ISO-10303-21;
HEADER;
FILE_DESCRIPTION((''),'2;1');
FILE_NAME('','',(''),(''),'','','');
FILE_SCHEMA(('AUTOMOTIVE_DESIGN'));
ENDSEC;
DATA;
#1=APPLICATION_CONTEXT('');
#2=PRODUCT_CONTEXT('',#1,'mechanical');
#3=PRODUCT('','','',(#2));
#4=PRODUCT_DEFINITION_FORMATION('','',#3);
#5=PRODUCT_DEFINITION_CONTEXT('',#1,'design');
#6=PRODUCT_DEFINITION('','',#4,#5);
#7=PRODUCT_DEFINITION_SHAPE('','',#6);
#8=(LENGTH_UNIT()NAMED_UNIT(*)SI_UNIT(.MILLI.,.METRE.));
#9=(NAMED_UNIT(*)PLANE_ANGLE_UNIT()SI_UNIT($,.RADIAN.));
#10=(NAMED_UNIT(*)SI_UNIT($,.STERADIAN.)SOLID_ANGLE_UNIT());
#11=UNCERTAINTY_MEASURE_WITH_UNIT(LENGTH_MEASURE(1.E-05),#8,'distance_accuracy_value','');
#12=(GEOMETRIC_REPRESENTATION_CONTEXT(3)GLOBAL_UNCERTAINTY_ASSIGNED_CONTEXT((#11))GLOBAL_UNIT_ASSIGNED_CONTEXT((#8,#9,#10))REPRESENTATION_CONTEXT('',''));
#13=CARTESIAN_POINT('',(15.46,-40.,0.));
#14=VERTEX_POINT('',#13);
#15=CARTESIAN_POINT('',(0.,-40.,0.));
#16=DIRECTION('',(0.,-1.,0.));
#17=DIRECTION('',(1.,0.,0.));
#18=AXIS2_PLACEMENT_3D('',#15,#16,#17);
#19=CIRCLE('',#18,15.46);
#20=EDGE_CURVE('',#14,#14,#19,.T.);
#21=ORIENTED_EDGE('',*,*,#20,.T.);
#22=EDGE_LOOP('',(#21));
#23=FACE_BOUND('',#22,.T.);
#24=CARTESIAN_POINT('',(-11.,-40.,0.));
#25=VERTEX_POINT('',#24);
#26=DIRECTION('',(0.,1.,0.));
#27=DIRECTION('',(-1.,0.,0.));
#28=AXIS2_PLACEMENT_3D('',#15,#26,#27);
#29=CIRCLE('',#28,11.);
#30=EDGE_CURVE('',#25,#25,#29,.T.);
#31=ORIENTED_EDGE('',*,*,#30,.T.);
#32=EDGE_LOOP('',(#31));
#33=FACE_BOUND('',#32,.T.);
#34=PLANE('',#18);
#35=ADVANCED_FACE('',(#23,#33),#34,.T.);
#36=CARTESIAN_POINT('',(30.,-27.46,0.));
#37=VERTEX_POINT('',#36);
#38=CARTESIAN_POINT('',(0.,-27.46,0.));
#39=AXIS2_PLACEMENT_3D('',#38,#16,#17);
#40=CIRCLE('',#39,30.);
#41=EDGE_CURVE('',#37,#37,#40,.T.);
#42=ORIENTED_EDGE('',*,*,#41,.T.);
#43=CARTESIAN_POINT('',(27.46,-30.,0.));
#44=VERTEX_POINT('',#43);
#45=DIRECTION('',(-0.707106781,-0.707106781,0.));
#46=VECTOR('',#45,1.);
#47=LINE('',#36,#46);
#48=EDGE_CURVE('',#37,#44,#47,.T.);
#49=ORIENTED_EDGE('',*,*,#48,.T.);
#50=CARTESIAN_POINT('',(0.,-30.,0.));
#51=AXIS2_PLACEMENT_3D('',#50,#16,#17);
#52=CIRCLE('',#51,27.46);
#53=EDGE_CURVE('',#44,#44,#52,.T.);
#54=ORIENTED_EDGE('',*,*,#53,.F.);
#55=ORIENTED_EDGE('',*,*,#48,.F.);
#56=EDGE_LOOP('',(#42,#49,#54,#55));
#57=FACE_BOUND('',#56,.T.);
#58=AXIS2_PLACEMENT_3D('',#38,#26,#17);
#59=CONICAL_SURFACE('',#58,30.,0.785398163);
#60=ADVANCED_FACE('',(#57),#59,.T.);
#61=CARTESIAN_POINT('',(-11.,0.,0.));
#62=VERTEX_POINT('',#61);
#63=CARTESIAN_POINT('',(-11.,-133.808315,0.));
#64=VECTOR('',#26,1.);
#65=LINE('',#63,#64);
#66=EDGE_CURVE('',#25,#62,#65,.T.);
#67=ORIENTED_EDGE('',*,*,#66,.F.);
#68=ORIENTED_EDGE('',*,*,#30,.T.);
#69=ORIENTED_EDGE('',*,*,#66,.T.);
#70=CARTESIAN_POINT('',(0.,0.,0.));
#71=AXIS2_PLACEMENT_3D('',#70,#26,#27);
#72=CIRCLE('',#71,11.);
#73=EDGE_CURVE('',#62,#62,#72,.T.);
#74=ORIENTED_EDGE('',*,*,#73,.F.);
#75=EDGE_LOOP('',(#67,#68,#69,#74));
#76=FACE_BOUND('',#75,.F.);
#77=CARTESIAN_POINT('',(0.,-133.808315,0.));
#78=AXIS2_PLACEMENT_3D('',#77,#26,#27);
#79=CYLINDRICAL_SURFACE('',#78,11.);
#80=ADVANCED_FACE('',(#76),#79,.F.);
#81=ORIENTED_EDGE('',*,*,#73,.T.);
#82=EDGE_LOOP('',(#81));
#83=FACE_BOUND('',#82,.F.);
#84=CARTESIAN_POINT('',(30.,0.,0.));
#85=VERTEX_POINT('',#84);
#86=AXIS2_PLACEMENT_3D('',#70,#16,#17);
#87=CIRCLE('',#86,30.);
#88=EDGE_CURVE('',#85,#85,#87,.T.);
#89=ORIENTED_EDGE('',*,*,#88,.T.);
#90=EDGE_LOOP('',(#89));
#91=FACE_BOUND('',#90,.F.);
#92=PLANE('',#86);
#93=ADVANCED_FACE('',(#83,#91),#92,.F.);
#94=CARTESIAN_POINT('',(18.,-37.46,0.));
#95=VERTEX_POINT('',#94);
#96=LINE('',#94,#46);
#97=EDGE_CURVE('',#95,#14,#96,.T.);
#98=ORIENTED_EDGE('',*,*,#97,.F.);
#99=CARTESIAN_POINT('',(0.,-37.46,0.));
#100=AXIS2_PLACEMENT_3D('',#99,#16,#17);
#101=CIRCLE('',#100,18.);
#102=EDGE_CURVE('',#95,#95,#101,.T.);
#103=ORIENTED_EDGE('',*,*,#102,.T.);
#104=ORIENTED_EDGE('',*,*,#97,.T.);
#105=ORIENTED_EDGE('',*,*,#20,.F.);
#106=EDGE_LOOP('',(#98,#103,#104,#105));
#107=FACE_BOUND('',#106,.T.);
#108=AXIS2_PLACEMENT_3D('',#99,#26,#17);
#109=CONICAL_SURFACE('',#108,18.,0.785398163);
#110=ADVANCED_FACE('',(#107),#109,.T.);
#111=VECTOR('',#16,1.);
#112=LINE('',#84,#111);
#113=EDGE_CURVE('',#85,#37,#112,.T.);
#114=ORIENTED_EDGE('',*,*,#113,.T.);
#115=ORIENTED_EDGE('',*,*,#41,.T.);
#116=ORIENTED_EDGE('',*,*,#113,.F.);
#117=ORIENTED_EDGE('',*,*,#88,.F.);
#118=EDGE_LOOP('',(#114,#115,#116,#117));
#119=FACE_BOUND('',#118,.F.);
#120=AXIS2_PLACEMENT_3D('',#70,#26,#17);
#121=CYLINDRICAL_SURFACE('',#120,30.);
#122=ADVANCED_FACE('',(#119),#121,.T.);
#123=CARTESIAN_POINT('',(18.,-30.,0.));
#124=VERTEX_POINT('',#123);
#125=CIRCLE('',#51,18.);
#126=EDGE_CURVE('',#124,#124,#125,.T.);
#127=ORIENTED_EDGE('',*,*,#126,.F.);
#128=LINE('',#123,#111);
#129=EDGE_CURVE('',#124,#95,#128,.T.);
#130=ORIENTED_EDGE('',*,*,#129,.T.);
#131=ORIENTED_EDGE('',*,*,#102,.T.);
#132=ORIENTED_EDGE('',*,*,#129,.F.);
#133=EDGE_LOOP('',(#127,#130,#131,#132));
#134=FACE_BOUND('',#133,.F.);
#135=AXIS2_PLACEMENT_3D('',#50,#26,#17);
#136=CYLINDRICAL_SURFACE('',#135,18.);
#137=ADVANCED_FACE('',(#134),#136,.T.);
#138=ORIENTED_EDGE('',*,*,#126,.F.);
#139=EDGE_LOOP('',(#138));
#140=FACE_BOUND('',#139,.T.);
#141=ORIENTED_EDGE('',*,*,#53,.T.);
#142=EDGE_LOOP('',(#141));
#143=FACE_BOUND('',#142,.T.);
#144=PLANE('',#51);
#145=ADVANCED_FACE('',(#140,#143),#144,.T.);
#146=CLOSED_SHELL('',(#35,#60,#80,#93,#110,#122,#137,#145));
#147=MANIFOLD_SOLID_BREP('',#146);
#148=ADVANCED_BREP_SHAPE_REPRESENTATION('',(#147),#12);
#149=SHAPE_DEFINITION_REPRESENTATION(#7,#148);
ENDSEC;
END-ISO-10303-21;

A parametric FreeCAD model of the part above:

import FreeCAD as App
import Part
import Sketcher


def edges_at(feature, points):
    """Names of the edges that pass closest to the given points."""
    edges = feature.Shape.Edges
    near = lambda p: min(range(len(edges)), key=lambda i: edges[i].distToShape(Part.Vertex(*p))[0])
    return sorted({f"Edge{near(p) + 1}" for p in points})

doc = App.newDocument("Part")
body = doc.addObject("PartDesign::Body", "Body")

sketch1 = doc.addObject("Sketcher::SketchObject", "Sketch")
body.addObject(sketch1)
sketch1.AttachmentSupport = (doc.XZ_Plane, [""])
sketch1.MapMode = "FlatFace"
sketch1.addGeometry(Part.Circle(App.Vector(0, 0, 0), App.Vector(0, 0, 1), 30), False)
sketch1.addConstraint(Sketcher.Constraint("Coincident", 0, 3, -1, 1))
sketch1.addConstraint(Sketcher.Constraint("Diameter", 0, 60.0))
pad1 = doc.addObject("PartDesign::Pad", "Pad")
body.addObject(pad1)
pad1.Profile = sketch1
pad1.Length = 30

sketch2 = doc.addObject("Sketcher::SketchObject", "Sketch001")
body.addObject(sketch2)
sketch2.AttachmentSupport = (doc.XZ_Plane, [""])
sketch2.MapMode = "FlatFace"
sketch2.AttachmentOffset = App.Placement(App.Vector(0, 0, 30), App.Rotation())
sketch2.addGeometry(Part.Circle(App.Vector(0, 0, 0), App.Vector(0, 0, 1), 18), False)
sketch2.addConstraint(Sketcher.Constraint("Coincident", 0, 3, -1, 1))
sketch2.addConstraint(Sketcher.Constraint("Diameter", 0, 36.0))
pad2 = doc.addObject("PartDesign::Pad", "Pad001")
body.addObject(pad2)
pad2.Profile = sketch2
pad2.Length = 10

sketch3 = doc.addObject("Sketcher::SketchObject", "Sketch002")
body.addObject(sketch3)
sketch3.AttachmentSupport = (doc.XZ_Plane, [""])
sketch3.MapMode = "FlatFace"
sketch3.AttachmentOffset = App.Placement(App.Vector(0, 0, 40), App.Rotation())
sketch3.addGeometry(Part.Circle(App.Vector(0, 0, 0), App.Vector(0, 0, 1), 11), False)
sketch3.addConstraint(Sketcher.Constraint("Coincident", 0, 3, -1, 1))
sketch3.addConstraint(Sketcher.Constraint("Diameter", 0, 22.0))
doc.recompute()
hole = doc.addObject("PartDesign::Hole", "Hole")
body.addObject(hole)
hole.Profile = sketch3
hole.ThreadType = "None"
hole.Diameter = 22
hole.DepthType = "ThroughAll"
doc.recompute()

chamfer = doc.addObject("PartDesign::Chamfer", "Chamfer")
body.addObject(chamfer)
chamfer.Base = (hole, edges_at(hole, [(-30, -30, 0)]))
chamfer.Size = 2.54
doc.recompute()

chamfer2 = doc.addObject("PartDesign::Chamfer", "Chamfer001")
body.addObject(chamfer2)
chamfer2.Base = (chamfer, edges_at(chamfer, [(-18, -40, 0)]))
chamfer2.Size = 2.54

doc.recompute()
